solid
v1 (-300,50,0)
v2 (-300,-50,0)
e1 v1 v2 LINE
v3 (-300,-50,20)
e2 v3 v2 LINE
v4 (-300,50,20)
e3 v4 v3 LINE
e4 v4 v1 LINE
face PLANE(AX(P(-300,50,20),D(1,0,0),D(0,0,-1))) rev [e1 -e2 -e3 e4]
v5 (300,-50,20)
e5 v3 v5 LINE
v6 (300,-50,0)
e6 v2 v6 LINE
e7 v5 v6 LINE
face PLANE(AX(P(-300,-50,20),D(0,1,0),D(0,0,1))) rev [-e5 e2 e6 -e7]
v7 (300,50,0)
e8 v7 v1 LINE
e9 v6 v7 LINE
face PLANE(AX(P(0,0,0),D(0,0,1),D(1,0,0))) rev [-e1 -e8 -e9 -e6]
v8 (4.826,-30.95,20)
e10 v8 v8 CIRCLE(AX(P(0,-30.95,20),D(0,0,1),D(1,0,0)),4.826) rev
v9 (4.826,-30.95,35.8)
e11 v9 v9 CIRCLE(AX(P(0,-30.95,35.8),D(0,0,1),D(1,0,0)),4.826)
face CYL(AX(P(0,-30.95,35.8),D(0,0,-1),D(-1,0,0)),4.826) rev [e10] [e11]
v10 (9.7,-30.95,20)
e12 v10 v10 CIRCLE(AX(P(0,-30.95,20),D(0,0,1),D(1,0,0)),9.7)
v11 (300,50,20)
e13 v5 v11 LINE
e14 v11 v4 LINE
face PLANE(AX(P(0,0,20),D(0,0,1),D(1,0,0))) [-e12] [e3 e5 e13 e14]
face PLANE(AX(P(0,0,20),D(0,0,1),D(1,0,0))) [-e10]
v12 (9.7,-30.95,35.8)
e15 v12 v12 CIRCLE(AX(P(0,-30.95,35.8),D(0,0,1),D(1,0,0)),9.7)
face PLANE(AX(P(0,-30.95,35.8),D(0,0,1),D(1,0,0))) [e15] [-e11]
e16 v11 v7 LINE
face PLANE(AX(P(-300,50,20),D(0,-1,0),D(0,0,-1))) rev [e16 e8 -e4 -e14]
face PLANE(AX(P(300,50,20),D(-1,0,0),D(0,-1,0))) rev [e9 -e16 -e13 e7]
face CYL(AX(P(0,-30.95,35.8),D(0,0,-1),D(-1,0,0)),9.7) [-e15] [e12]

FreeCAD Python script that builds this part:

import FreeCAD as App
import Part
import Sketcher

V = App.Vector


def add_polygon(sketch, points):
    """Adds a closed chain of lines whose ends are joined by coincident constraints."""
    first, n = sketch.GeometryCount, len(points)
    for a, b in zip(points, points[1:] + points[:1]):
        sketch.addGeometry(Part.LineSegment(App.Vector(*a, 0), App.Vector(*b, 0)), False)
    for i in range(n):
        sketch.addConstraint(Sketcher.Constraint("Coincident", first + i, 2, first + (i + 1) % n, 1))

doc = App.newDocument("Part")
body = doc.addObject("PartDesign::Body", "Body")

# Sketch on XY plane
sketch1 = body.newObject("Sketcher::SketchObject", "Sketch")
sketch1.AttachmentSupport = (doc.getObject("XY_Plane"), [""])
sketch1.MapMode = "FlatFace"
add_polygon(sketch1, [(-300, 50), (-300, -50), (300, -50), (300, 50)])  # lines 0-3
sketch1.addConstraint(Sketcher.Constraint("Vertical", 0))
sketch1.addConstraint(Sketcher.Constraint("Horizontal", 1))
sketch1.addConstraint(Sketcher.Constraint("Vertical", 2))
sketch1.addConstraint(Sketcher.Constraint("Horizontal", 3))
sketch1.addConstraint(Sketcher.Constraint("Symmetric", 0, 2, 2, 2, -1, 1))
sketch1.addConstraint(Sketcher.Constraint("DistanceX", 1, 1, 1, 2, 600.0))
sketch1.addConstraint(Sketcher.Constraint("DistanceY", 0, 2, 0, 1, 100.0))
pad1 = body.newObject("PartDesign::Pad", "Pad")
pad1.Profile = sketch1
pad1.Length = 20

# Sketch on XY plane
sketch2 = body.newObject("Sketcher::SketchObject", "Sketch001")
sketch2.AttachmentSupport = (doc.getObject("XY_Plane"), [""])
sketch2.MapMode = "FlatFace"
sketch2.AttachmentOffset = App.Placement(V(0, 0, 20), App.Rotation())
sketch2.addGeometry(Part.Circle(V(0, -30.9, 0), V(0, 0, 1), 9.7), False)
sketch2.addGeometry(Part.Circle(V(0, -30.9, 0), V(0, 0, 1), 4.8), False)
sketch2.addConstraint(Sketcher.Constraint("Coincident", 1, 3, 0, 3))
sketch2.addConstraint(Sketcher.Constraint("PointOnObject", 0, 3, -2))
sketch2.addConstraint(Sketcher.Constraint("Diameter", 0, 19.4))
sketch2.addConstraint(Sketcher.Constraint("Diameter", 1, 9.652))
sketch2.addConstraint(Sketcher.Constraint("DistanceY", 0, 3, -1, 1, 30.95))
pad2 = body.newObject("PartDesign::Pad", "Pad001")
pad2.Profile = sketch2
pad2.Length = 15.8

doc.recompute()
